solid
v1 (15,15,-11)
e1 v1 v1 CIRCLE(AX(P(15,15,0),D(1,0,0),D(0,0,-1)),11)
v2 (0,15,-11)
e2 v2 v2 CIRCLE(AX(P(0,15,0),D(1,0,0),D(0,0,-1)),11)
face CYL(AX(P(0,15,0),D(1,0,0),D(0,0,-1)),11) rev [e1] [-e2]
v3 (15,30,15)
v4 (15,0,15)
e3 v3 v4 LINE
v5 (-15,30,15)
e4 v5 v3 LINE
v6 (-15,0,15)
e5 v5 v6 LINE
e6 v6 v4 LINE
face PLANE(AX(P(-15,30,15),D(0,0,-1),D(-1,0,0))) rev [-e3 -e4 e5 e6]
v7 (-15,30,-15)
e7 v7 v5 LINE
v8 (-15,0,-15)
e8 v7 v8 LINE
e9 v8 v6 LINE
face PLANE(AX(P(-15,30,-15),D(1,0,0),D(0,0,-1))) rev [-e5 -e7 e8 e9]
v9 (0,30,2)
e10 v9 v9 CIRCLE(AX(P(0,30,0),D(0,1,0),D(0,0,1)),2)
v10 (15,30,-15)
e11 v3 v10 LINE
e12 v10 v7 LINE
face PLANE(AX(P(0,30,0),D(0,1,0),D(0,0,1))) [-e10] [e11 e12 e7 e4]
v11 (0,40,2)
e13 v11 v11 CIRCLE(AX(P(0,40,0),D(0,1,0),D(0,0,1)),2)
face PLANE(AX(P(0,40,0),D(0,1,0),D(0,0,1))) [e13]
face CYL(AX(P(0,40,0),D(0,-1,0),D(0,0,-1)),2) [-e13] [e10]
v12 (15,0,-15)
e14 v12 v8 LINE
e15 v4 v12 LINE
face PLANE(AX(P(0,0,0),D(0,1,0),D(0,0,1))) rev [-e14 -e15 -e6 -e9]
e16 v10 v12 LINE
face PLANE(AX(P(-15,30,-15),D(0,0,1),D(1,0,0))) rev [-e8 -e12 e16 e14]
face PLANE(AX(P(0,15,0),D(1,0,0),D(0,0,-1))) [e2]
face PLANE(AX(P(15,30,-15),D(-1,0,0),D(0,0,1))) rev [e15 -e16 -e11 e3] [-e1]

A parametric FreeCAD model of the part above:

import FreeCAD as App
import Part
import Sketcher


def add_polygon(sketch, points):
    """Adds a closed chain of lines whose ends are joined by coincident constraints."""
    first, n = sketch.GeometryCount, len(points)
    for a, b in zip(points, points[1:] + points[:1]):
        sketch.addGeometry(Part.LineSegment(App.Vector(*a, 0), App.Vector(*b, 0)), False)
    for i in range(n):
        sketch.addConstraint(Sketcher.Constraint("Coincident", first + i, 2, first + (i + 1) % n, 1))

doc = App.newDocument("Part")
params = doc.addObject("Spreadsheet::Sheet", "Params")
for row, (alias, value) in enumerate([
    ("sketch1_width", "30 mm"),
    ("pad1_length", "30 mm"),
    ("sketch2_diameter", "22 mm"),
    ("pocket1_length", "15 mm"),
    ("sketch3_diameter", "4 mm"),
    ("pad2_length", "10 mm"),
], start=1):
    params.set(f"A{row}", alias)
    params.set(f"B{row}", "=" + value)
    params.setAlias(f"B{row}", alias)

body = doc.addObject("PartDesign::Body", "Body")

# Sketch on XZ plane
sketch1 = body.newObject("Sketcher::SketchObject", "Sketch")
sketch1.AttachmentSupport = (doc.getObject("XZ_Plane"), [""])
sketch1.MapMode = "FlatFace"
add_polygon(sketch1, [(-15, -15), (-15, 15), (15, 15), (15, -15)])  # lines 0-3
sketch1.addConstraint([
    Sketcher.Constraint("Vertical", 0),
    Sketcher.Constraint("Horizontal", 1),
    Sketcher.Constraint("Vertical", 2),
    Sketcher.Constraint("Horizontal", 3),
    Sketcher.Constraint("Symmetric", 0, 2, 2, 2, -1, 1),
    Sketcher.Constraint("Equal", 3, 0),
    Sketcher.Constraint("DistanceX", 1, 1, 1, 2, 30.0),
])
sketch1.setExpression("Constraints[10]", "Params.sketch1_width")
pad1 = body.newObject("PartDesign::Pad", "Pad")
pad1.Profile = sketch1
pad1.setExpression("Length", "Params.pad1_length")
pad1.Reversed = True

# Sketch on YZ plane
sketch2 = body.newObject("Sketcher::SketchObject", "Sketch001")
sketch2.AttachmentSupport = (doc.getObject("YZ_Plane"), [""])
sketch2.MapMode = "FlatFace"
sketch2.AttachmentOffset = App.Placement(App.Vector(0, 0, 15), App.Rotation())
sketch2.addGeometry(Part.Circle(App.Vector(15, 0, 0), App.Vector(0, 0, 1), 11), False)
sketch2.addConstraint([
    Sketcher.Constraint("PointOnObject", 0, 3, -1),
    Sketcher.Constraint("Diameter", 0, 22.0),
    Sketcher.Constraint("DistanceX", -1, 1, 0, 3, 15.0),
])
sketch2.setExpression("Constraints[1]", "Params.sketch2_diameter")
pocket1 = body.newObject("PartDesign::Pocket", "Pocket")
pocket1.Profile = sketch2
pocket1.setExpression("Length", "Params.pocket1_length")

# Sketch on XZ plane
sketch3 = body.newObject("Sketcher::SketchObject", "Sketch002")
sketch3.AttachmentSupport = (doc.getObject("XZ_Plane"), [""])
sketch3.MapMode = "FlatFace"
sketch3.AttachmentOffset = App.Placement(App.Vector(0, 0, -30), App.Rotation())
sketch3.addGeometry(Part.Circle(App.Vector(0, 0, 0), App.Vector(0, 0, 1), 2), False)
sketch3.addConstraint([
    Sketcher.Constraint("Coincident", 0, 3, -1, 1),
    Sketcher.Constraint("Diameter", 0, 4.0),
])
sketch3.setExpression("Constraints[1]", "Params.sketch3_diameter")
pad2 = body.newObject("PartDesign::Pad", "Pad001")
pad2.Profile = sketch3
pad2.setExpression("Length", "Params.pad2_length")
pad2.Reversed = True

doc.recompute()
